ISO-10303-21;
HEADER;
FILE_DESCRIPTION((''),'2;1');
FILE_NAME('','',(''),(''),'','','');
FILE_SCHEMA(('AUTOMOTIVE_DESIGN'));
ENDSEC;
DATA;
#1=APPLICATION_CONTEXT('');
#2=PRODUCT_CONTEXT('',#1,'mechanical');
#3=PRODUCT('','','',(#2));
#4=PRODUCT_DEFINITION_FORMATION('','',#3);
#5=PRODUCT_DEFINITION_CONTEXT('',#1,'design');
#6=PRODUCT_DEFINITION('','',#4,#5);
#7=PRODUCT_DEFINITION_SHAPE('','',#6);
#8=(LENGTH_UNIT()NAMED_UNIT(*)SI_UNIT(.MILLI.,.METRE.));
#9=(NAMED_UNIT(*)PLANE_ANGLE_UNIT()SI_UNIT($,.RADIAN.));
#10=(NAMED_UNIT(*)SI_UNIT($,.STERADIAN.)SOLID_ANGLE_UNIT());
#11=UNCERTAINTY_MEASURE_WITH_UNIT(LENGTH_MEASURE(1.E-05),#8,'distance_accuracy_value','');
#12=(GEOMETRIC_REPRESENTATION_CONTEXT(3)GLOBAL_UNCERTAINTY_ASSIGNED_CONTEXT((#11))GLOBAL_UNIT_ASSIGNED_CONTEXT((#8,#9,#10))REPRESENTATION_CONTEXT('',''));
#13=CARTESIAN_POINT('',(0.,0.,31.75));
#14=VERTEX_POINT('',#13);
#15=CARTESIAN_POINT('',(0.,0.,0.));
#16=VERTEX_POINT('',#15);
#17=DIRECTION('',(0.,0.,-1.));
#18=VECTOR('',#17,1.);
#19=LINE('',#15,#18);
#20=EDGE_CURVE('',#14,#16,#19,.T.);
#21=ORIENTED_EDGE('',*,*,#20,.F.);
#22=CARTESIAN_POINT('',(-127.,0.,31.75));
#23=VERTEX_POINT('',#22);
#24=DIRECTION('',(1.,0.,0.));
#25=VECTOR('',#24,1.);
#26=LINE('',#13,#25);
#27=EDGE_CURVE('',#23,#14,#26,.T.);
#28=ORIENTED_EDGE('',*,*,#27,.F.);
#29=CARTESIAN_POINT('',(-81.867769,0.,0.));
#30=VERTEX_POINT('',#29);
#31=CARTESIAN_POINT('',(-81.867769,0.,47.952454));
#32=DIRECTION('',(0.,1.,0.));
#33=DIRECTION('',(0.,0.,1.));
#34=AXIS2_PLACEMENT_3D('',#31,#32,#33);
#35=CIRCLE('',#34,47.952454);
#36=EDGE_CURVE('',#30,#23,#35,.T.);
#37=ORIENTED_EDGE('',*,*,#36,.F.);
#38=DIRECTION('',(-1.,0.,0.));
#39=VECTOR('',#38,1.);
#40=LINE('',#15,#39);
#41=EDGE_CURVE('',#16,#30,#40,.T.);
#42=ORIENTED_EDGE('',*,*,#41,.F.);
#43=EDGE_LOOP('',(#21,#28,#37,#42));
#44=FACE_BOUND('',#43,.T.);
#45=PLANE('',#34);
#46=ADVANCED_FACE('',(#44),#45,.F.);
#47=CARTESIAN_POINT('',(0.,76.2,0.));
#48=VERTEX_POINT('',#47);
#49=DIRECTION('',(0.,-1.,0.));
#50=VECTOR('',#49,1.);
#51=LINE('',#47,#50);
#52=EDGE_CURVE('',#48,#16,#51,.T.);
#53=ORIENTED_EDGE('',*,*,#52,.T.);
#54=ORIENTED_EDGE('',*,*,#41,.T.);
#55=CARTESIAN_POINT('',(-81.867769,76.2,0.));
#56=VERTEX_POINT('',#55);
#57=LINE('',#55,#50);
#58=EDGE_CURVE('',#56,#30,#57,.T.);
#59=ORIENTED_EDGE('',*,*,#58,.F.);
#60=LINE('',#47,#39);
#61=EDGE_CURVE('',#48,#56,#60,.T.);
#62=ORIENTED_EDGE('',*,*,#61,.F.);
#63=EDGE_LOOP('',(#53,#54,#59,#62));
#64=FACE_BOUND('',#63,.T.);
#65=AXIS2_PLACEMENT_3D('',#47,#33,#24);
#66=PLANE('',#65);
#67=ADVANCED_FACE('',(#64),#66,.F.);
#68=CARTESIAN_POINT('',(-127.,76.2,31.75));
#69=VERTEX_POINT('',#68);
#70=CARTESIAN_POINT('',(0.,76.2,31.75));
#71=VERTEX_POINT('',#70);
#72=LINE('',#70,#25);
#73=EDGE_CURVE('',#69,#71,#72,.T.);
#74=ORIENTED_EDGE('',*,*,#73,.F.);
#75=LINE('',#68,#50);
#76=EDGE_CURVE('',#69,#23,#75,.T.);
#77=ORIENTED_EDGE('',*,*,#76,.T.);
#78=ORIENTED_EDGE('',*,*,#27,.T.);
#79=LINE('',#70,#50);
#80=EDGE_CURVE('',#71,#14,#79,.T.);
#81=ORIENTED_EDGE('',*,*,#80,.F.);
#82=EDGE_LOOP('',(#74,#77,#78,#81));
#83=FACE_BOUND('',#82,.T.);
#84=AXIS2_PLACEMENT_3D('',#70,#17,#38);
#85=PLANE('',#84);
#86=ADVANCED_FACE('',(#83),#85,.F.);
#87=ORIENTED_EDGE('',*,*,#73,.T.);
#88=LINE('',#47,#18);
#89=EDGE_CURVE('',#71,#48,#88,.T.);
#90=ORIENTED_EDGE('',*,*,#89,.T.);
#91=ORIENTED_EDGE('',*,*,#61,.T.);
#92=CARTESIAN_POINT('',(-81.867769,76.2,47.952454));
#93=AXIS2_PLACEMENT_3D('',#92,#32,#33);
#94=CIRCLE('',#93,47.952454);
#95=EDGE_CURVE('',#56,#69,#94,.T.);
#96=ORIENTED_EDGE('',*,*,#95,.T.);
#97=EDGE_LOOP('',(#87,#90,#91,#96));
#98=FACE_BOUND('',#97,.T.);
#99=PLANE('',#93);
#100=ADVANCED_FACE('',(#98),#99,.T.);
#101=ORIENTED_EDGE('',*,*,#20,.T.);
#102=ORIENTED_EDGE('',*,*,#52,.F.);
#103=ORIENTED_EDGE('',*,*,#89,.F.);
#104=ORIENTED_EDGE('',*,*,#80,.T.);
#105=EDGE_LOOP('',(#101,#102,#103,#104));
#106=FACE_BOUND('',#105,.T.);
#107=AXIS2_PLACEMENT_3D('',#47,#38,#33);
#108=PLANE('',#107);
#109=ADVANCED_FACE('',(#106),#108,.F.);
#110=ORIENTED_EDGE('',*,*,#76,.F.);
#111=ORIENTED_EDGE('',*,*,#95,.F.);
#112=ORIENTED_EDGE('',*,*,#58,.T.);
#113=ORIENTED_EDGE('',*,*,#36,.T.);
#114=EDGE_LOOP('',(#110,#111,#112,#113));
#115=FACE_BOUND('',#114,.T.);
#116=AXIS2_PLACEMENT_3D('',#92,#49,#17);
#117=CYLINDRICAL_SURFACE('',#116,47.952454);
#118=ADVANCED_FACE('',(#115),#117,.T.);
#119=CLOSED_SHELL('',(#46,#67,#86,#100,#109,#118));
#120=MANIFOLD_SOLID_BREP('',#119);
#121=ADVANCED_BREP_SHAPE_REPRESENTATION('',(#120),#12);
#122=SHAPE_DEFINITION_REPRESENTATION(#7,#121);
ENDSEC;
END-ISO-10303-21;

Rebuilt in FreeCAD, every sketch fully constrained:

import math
import FreeCAD as App
import Part
import Sketcher
Q = App.Units.Quantity

doc = App.newDocument("Part")
params = doc.addObject("Spreadsheet::Sheet", "Params")
for row, (alias, value) in enumerate([
    ("sketch1_width", "5 in"),
    ("sketch1_height", "1.25 in"),
    ("pad1_length", "3 in"),
], start=1):
    params.set(f"A{row}", alias)
    params.set(f"B{row}", "=" + value)
    params.setAlias(f"B{row}", alias)

body = doc.addObject("PartDesign::Body", "Body")

# Sketch on XZ plane
sketch1 = body.newObject("Sketcher::SketchObject", "Sketch")
sketch1.AttachmentSupport = (doc.getObject("XZ_Plane"), [""])
sketch1.MapMode = "FlatFace"
sketch1.addGeometry([
    Part.LineSegment(App.Vector(0, 32, 0), App.Vector(0, 0, 0)),
    Part.LineSegment(App.Vector(0, 0, 0), App.Vector(-82, 0, 0)),
    Part.ArcOfCircle(Part.Circle(App.Vector(-82, 48, 0), App.Vector(0, 0, 1), 48), math.radians(-160), math.radians(-90)),
    Part.LineSegment(App.Vector(-127, 32, 0), App.Vector(0, 32, 0)),
], False)
sketch1.addConstraint([
    Sketcher.Constraint("Coincident", 0, 2, 1, 1),
    Sketcher.Constraint("Tangent", 1, 2, 2, 2),
    Sketcher.Constraint("Coincident", 2, 1, 3, 1),
    Sketcher.Constraint("Coincident", 3, 2, 0, 1),
    Sketcher.Constraint("Vertical", 0),
    Sketcher.Constraint("Horizontal", 1),
    Sketcher.Constraint("Horizontal", 3),
    Sketcher.Constraint("Coincident", 0, 2, -1, 1),
    Sketcher.Constraint("DistanceX", 3, 1, 3, 2, Q("5 in")),
    Sketcher.Constraint("DistanceY", 0, 2, 0, 1, Q("1.25 in")),
    Sketcher.Constraint("Radius", 2, 47.952454),
])
sketch1.setExpression("Constraints[8]", "Params.sketch1_width")
sketch1.setExpression("Constraints[9]", "Params.sketch1_height")
pad1 = body.newObject("PartDesign::Pad", "Pad")
pad1.Profile = sketch1
pad1.setExpression("Length", "Params.pad1_length")
pad1.Reversed = True

doc.recompute()
